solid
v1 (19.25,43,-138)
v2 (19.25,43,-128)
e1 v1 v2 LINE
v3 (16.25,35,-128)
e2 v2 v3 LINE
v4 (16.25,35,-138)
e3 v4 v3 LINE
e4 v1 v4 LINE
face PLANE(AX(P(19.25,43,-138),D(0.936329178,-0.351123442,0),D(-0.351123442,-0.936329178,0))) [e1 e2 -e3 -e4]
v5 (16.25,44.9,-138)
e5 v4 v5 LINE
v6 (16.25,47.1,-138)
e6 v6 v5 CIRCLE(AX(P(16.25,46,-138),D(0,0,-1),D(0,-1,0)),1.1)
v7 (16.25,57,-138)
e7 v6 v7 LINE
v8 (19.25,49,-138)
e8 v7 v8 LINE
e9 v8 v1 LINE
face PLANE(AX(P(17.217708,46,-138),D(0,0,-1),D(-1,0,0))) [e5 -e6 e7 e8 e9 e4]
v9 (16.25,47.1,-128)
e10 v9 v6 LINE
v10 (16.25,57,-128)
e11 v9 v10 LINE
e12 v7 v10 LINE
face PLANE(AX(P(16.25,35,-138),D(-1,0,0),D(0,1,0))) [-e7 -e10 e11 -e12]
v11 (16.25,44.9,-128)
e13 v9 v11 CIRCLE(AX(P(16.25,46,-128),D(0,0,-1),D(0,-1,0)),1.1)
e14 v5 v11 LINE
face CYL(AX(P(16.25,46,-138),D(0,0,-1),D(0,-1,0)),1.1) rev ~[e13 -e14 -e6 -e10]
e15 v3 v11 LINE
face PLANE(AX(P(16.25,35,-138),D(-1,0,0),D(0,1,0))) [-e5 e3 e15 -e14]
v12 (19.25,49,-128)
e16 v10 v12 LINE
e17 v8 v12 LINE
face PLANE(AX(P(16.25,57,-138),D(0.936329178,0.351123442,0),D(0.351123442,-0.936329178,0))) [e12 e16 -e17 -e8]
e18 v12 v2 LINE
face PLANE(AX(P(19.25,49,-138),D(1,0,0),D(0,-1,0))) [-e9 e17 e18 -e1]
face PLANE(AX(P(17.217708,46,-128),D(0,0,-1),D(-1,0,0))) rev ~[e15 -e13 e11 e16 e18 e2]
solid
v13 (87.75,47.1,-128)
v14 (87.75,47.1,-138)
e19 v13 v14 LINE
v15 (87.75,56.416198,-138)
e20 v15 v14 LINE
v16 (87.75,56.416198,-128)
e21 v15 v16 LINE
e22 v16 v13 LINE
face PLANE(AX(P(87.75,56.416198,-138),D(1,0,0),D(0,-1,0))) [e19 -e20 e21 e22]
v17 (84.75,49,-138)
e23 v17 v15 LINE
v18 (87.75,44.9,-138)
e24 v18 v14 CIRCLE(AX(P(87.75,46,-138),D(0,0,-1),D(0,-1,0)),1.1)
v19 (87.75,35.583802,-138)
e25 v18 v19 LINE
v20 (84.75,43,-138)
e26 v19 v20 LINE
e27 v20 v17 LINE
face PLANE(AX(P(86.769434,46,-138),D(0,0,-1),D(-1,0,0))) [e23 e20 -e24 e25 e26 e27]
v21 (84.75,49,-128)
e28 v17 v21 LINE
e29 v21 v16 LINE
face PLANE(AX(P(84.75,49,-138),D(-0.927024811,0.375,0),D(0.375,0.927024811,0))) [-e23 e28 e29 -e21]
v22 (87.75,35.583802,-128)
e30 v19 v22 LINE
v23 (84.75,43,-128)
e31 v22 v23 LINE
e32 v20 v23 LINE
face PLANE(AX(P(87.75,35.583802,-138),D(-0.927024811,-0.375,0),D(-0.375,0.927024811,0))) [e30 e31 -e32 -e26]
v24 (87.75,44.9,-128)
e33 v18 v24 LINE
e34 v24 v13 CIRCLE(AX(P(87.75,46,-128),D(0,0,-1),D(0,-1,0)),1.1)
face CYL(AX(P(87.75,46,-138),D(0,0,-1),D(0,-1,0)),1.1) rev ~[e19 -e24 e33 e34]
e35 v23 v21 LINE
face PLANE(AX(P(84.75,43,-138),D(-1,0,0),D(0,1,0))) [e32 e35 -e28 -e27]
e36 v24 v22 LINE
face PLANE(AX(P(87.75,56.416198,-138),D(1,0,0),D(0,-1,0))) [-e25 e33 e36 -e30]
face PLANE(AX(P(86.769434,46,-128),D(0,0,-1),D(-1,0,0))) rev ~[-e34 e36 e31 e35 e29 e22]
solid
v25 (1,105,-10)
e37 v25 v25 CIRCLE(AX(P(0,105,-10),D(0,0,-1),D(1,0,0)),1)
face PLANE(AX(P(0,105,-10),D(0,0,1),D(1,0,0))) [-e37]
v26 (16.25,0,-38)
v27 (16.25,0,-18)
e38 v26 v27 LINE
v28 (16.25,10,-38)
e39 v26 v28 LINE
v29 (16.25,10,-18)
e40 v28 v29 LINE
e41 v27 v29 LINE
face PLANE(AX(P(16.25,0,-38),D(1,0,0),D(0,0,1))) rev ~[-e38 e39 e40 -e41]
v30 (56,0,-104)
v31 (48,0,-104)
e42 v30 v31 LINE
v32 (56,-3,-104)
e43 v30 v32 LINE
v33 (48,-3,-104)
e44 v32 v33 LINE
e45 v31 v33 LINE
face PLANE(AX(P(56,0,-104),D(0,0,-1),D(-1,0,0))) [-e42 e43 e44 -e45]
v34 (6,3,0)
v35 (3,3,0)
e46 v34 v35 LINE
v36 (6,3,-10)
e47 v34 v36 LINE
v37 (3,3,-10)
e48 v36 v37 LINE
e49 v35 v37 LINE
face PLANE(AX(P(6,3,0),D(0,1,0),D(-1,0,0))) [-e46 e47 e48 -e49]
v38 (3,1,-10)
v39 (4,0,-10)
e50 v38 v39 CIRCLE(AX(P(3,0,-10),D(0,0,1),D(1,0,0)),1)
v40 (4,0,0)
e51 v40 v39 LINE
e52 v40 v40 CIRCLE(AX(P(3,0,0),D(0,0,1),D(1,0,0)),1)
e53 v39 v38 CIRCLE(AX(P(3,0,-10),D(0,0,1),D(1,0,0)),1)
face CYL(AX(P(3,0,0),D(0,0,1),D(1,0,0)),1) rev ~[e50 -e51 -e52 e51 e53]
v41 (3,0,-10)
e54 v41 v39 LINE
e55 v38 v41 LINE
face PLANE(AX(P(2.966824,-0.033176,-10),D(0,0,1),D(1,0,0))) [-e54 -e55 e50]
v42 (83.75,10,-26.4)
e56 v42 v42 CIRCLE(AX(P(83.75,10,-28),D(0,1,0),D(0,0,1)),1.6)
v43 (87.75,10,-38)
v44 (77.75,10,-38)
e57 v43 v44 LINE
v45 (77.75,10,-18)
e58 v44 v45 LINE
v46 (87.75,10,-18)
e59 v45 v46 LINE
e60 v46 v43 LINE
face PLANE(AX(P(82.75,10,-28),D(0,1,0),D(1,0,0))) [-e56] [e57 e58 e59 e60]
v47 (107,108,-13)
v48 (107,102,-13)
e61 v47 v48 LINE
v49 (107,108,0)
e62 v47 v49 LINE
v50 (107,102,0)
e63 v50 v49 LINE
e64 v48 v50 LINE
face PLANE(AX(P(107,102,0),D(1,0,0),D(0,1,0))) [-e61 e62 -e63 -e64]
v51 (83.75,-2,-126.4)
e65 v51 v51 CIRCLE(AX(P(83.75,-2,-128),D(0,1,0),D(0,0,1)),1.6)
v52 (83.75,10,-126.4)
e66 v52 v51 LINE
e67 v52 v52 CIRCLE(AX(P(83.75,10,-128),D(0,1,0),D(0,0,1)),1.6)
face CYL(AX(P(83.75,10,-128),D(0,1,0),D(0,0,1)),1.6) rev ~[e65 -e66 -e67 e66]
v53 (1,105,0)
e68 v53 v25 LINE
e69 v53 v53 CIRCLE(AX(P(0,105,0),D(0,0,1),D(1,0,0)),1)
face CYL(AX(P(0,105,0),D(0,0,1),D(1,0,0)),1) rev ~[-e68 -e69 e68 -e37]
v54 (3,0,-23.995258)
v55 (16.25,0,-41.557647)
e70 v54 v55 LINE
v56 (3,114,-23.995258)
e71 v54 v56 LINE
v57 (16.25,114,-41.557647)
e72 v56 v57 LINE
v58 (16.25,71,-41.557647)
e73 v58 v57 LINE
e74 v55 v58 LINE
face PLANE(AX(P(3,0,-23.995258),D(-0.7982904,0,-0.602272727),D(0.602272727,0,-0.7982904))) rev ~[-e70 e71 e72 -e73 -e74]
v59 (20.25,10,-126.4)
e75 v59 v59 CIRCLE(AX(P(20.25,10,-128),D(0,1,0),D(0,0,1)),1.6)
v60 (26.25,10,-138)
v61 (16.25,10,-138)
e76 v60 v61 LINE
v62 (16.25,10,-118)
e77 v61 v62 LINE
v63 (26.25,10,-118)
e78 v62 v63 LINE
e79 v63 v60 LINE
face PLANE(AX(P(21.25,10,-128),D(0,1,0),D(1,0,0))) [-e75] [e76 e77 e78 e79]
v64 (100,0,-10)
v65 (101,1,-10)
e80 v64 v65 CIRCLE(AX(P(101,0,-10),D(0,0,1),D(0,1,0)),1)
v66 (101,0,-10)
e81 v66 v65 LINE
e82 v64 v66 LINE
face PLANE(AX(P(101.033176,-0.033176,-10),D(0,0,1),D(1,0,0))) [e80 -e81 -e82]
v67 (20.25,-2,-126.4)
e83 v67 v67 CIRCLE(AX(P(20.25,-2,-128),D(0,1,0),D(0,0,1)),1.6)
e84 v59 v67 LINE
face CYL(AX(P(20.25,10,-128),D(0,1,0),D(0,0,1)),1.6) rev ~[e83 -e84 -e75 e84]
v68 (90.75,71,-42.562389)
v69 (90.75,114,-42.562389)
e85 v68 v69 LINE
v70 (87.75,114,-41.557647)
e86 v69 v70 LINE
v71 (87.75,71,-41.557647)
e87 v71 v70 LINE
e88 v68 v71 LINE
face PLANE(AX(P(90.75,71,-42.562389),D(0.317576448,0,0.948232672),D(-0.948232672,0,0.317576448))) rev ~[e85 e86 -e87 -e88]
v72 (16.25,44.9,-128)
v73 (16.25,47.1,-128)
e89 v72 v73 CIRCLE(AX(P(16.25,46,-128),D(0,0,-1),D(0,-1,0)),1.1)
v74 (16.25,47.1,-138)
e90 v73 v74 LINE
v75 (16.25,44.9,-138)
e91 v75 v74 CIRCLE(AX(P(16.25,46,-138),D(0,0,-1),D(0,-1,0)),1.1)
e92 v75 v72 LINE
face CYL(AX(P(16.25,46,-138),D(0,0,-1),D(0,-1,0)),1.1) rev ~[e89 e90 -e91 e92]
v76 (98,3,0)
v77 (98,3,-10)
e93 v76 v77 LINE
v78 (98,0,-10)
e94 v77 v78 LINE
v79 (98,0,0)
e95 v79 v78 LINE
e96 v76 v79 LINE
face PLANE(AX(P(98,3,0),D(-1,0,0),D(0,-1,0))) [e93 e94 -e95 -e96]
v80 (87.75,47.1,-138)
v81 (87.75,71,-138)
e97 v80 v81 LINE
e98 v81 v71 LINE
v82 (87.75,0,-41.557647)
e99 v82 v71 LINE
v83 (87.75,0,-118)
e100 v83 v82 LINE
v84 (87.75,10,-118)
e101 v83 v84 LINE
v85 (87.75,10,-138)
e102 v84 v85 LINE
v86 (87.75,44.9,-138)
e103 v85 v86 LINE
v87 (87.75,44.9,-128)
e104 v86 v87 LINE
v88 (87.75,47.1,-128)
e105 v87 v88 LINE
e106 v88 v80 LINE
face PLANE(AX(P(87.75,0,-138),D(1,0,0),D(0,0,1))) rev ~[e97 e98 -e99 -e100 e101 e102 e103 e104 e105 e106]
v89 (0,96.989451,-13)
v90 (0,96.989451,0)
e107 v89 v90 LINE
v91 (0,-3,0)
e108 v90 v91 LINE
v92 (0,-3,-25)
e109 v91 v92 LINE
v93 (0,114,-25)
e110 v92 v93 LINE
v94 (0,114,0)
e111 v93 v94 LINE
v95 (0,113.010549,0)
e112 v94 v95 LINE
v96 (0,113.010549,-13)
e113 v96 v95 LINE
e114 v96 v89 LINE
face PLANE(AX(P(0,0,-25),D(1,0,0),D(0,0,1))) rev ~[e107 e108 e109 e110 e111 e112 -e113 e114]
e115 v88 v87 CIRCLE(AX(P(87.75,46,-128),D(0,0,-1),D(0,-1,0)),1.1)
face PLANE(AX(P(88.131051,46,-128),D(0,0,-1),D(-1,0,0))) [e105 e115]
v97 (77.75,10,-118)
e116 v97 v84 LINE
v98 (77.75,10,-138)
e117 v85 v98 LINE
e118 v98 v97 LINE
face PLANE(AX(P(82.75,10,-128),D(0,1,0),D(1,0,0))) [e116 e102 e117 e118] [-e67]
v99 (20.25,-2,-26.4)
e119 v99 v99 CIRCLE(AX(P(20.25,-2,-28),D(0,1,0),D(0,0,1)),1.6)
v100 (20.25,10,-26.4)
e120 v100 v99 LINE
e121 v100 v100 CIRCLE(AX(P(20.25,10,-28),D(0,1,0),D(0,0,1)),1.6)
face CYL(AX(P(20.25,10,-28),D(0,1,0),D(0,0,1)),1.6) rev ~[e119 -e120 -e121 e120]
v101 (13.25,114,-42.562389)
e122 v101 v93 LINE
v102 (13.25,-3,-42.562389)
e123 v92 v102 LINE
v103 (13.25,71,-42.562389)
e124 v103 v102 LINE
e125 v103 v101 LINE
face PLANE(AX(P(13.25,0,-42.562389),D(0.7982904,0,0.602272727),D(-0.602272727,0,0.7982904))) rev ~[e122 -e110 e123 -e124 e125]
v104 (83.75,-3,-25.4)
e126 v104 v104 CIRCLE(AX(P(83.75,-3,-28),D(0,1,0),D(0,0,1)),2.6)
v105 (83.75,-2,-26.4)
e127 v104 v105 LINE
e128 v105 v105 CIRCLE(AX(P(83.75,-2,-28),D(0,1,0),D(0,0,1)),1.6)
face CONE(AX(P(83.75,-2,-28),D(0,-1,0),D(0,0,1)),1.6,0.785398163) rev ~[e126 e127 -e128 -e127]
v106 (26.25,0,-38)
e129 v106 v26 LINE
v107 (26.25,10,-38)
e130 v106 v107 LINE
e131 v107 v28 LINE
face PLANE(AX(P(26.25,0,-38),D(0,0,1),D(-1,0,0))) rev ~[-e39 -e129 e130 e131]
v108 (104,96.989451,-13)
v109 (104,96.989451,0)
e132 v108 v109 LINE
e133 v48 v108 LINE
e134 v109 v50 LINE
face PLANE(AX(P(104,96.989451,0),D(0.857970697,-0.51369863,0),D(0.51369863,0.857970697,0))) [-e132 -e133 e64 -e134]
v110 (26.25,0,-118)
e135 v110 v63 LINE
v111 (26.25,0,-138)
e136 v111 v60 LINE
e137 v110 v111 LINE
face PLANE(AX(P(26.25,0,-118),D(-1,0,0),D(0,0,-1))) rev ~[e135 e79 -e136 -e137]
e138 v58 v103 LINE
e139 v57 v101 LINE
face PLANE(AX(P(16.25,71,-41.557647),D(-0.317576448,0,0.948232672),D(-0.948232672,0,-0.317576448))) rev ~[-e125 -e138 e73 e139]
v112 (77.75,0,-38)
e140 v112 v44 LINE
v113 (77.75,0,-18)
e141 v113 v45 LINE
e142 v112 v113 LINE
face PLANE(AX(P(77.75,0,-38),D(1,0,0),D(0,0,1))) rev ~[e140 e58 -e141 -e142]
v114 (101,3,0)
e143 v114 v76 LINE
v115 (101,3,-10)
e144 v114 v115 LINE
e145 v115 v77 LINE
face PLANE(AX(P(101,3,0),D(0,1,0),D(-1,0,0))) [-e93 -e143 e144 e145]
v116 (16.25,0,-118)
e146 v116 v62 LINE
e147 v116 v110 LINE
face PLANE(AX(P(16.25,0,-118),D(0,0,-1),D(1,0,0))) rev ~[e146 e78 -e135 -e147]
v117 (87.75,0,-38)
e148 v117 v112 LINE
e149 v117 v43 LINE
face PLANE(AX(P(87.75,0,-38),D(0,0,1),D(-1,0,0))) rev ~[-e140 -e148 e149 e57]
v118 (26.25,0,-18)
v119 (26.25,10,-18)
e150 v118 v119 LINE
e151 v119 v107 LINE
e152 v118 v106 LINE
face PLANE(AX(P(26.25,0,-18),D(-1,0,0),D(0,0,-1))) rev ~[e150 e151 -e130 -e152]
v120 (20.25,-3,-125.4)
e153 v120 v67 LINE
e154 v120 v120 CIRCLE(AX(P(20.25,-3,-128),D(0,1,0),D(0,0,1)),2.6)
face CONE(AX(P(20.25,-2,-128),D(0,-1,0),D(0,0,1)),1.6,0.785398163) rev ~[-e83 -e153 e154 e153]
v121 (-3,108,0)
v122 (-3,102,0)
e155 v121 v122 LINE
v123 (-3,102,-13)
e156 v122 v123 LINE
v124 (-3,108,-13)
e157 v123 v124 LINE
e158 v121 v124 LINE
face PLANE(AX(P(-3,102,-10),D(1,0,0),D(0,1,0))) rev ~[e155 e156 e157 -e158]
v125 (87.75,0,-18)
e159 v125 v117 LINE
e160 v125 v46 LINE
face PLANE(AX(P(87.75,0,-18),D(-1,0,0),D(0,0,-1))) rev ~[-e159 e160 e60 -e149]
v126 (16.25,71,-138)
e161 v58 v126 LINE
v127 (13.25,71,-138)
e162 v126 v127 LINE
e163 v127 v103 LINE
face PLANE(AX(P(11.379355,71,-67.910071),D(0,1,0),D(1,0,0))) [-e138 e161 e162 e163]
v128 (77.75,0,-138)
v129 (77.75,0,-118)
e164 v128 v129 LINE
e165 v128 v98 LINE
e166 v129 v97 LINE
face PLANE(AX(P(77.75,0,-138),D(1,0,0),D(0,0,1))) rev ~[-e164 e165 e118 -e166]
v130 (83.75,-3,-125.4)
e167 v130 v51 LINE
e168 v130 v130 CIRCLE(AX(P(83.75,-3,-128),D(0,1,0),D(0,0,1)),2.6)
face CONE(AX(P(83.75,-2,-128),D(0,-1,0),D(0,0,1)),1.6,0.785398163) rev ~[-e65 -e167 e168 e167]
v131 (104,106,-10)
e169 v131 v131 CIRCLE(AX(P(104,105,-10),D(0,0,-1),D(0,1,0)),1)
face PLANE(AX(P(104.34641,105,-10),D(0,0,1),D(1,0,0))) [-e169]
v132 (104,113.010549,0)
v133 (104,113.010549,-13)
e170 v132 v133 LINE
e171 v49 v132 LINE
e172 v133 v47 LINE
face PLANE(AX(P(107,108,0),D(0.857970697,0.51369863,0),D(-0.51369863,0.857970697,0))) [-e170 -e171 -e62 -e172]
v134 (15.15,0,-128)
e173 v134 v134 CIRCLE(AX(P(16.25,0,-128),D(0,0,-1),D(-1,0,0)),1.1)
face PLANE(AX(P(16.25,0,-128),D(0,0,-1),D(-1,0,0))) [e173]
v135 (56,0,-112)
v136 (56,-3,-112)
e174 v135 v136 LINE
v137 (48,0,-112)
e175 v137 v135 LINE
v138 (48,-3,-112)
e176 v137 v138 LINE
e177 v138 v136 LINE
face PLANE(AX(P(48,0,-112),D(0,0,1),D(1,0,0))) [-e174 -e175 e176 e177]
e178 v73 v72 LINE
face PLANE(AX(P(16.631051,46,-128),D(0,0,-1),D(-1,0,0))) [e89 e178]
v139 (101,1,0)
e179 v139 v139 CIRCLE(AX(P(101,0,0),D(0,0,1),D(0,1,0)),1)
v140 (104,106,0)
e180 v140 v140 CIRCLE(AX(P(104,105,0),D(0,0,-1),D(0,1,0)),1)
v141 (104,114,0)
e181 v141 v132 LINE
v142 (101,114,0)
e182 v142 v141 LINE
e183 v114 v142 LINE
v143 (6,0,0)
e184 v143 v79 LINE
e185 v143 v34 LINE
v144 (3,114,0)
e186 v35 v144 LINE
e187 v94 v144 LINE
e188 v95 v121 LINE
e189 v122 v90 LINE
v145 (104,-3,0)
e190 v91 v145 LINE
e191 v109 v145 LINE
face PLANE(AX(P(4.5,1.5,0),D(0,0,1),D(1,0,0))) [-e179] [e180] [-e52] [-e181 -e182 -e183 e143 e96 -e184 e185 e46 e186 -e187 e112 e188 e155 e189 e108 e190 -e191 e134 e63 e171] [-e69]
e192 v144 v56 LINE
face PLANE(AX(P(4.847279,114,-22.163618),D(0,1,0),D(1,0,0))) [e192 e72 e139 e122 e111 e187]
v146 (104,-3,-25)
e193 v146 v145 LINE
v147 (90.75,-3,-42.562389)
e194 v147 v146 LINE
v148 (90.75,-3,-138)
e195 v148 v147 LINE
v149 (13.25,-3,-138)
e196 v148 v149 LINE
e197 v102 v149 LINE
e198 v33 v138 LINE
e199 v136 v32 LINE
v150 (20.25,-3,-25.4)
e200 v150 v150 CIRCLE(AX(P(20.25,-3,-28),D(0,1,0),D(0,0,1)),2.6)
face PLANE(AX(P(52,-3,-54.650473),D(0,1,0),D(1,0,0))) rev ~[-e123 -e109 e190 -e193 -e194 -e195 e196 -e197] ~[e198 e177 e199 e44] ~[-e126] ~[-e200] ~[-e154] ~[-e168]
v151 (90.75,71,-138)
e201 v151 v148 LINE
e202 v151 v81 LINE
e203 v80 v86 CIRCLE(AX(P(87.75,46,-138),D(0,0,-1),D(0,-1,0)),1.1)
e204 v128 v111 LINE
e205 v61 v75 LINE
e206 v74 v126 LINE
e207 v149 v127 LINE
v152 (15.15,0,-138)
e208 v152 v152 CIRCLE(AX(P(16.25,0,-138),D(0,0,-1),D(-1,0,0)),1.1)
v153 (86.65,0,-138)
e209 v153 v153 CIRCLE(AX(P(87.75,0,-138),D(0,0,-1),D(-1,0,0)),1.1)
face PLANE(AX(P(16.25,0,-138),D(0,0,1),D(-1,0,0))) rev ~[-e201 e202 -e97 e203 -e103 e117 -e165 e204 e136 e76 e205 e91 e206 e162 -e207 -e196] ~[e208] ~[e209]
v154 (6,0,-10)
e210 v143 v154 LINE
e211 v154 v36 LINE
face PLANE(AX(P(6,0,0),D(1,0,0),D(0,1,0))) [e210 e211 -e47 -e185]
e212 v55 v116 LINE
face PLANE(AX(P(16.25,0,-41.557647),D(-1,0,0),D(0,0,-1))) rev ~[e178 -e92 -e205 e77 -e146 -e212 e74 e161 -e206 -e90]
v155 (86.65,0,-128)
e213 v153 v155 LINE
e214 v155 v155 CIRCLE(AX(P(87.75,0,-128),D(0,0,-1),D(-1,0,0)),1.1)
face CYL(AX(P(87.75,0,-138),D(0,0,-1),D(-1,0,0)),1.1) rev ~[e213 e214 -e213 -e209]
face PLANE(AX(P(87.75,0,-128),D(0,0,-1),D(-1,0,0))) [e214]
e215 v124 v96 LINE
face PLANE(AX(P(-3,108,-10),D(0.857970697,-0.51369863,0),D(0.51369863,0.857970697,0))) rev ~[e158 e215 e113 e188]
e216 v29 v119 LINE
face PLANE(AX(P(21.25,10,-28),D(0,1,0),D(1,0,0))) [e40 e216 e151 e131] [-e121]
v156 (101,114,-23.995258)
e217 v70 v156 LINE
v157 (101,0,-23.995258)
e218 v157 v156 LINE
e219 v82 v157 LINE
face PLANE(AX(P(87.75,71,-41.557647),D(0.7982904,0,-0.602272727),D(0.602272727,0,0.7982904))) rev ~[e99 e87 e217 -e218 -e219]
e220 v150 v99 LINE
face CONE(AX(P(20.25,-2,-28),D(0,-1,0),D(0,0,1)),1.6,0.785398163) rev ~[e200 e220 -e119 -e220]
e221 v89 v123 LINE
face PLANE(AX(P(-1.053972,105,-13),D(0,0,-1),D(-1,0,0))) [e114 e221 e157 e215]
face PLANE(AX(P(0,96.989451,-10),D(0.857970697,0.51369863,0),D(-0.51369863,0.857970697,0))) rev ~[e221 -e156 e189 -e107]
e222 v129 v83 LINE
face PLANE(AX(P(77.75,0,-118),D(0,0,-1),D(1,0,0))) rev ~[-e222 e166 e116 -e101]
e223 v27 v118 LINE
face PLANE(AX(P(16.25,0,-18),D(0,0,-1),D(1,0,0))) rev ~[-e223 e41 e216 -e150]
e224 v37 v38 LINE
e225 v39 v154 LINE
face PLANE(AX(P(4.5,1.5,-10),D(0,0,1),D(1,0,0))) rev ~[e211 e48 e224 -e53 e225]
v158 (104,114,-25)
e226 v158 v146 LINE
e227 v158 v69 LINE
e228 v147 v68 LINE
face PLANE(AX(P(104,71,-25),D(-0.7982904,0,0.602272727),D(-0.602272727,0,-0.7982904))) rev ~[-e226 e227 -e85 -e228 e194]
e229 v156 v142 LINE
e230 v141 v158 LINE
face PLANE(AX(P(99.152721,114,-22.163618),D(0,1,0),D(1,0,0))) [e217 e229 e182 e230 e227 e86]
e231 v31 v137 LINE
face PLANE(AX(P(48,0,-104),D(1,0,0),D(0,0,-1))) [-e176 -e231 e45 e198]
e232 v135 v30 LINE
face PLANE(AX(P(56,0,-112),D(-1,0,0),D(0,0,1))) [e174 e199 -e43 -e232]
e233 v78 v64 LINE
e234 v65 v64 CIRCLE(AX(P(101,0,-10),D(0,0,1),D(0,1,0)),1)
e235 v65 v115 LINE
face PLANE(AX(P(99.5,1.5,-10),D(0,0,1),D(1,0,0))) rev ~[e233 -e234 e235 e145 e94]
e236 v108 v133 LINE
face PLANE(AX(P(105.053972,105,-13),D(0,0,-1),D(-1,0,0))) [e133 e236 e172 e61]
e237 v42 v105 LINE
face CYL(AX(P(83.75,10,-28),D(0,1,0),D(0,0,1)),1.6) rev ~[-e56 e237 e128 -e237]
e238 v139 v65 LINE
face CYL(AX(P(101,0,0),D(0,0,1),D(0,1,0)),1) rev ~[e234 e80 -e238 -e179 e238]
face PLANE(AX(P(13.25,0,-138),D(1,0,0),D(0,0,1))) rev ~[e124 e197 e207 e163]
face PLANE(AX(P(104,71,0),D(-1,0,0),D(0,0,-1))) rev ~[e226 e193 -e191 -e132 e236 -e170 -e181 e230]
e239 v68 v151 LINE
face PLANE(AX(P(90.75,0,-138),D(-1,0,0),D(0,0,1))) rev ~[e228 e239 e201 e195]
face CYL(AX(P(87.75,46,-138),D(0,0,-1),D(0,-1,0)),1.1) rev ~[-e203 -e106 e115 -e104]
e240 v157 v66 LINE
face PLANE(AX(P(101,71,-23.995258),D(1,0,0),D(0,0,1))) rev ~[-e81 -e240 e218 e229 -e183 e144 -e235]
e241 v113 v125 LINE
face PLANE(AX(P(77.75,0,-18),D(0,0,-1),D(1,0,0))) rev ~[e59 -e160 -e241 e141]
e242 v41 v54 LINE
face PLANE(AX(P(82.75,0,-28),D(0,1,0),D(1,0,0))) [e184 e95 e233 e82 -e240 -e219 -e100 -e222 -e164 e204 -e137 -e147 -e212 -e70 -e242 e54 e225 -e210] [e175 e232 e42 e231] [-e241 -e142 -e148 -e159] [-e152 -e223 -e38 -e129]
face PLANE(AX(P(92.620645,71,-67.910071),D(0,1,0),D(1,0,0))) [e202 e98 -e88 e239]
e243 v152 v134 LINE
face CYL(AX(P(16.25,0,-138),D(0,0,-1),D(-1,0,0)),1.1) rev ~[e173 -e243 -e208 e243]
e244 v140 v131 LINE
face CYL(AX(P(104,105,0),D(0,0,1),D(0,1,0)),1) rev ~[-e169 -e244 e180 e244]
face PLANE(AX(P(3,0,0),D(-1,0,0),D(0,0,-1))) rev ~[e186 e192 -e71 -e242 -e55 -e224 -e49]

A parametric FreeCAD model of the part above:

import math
import FreeCAD as App
import Part
import Sketcher

V = App.Vector


def edges_at(feature, points):
    """Names of the edges that pass closest to the given points."""
    edges = feature.Shape.Edges
    near = lambda p: min(range(len(edges)), key=lambda i: edges[i].distToShape(Part.Vertex(*p))[0])
    return sorted({f"Edge{near(p) + 1}" for p in points})


def add_polygon(sketch, points):
    """Adds a closed chain of lines whose ends are joined by coincident constraints."""
    first, n = sketch.GeometryCount, len(points)
    for a, b in zip(points, points[1:] + points[:1]):
        sketch.addGeometry(Part.LineSegment(App.Vector(*a, 0), App.Vector(*b, 0)), False)
    for i in range(n):
        sketch.addConstraint(Sketcher.Constraint("Coincident", first + i, 2, first + (i + 1) % n, 1))

doc = App.newDocument("Part")
body = doc.addObject("PartDesign::Body", "Body")

sketch1 = body.newObject("Sketcher::SketchObject", "Sketch")
sketch1.AttachmentSupport = (doc.getObject("XZ_Plane"), [""])
sketch1.MapMode = "FlatFace"
add_polygon(sketch1, [(0, 0), (104, 0), (104, -25), (91, -43), (91, -138), (13, -138), (13, -43), (0, -25)])
add_polygon(sketch1, [(56, -112), (56, -104), (48, -104), (48, -112)])
sketch1.addConstraint([
    Sketcher.Constraint("Horizontal", 0),
    Sketcher.Constraint("Vertical", 1),
    Sketcher.Constraint("Vertical", 3),
    Sketcher.Constraint("Horizontal", 4),
    Sketcher.Constraint("Vertical", 5),
    Sketcher.Constraint("Vertical", 7),
    Sketcher.Constraint("Vertical", 8),
    Sketcher.Constraint("Horizontal", 9),
    Sketcher.Constraint("Vertical", 10),
    Sketcher.Constraint("Horizontal", 11),
    Sketcher.Constraint("Coincident", 7, 2, -1, 1),
    Sketcher.Constraint("Horizontal", 2, 2, 5, 2),
    Sketcher.Constraint("Horizontal", 1, 2, 6, 2),
    Sketcher.Constraint("Equal", 11, 8),
    Sketcher.Constraint("Equal", 2, 6),
    Sketcher.Constraint("DistanceX", 0, 1, 0, 2, 104.0),
    Sketcher.Constraint("DistanceX", 9, 2, 9, 1, 8.0),
    Sketcher.Constraint("DistanceY", 1, 2, 1, 1, 25.0),
    Sketcher.Constraint("Distance", 2, 22.0),
    Sketcher.Constraint("DistanceX", 4, 2, 4, 1, 77.5),
    Sketcher.Constraint("DistanceY", 3, 2, -1, 1, 138.0),
    Sketcher.Constraint("DistanceX", -1, 1, 8, 2, 56.0),
    Sketcher.Constraint("DistanceY", 8, 2, -1, 1, 104.0),
])
pad1 = body.newObject("PartDesign::Pad", "Pad")
pad1.Profile = sketch1
pad1.Length = 3

sketch2 = body.newObject("Sketcher::SketchObject", "Sketch001")
sketch2.AttachmentSupport = (doc.getObject("XZ_Plane"), [""])
sketch2.MapMode = "FlatFace"
add_polygon(sketch2, [(0, 0), (3, 0), (3, -24), (16.2, -41.6), (16.2, -138), (13.2, -138), (13.2, -42.6), (0, -25)])
add_polygon(sketch2, [(101, -24), (101, 0), (104, 0), (104, -25), (90.8, -42.6), (90.8, -138), (87.8, -138), (87.8, -41.6)])
sketch2.addConstraint([
    Sketcher.Constraint("Horizontal", 0),
    Sketcher.Constraint("Vertical", 1),
    Sketcher.Constraint("Vertical", 3),
    Sketcher.Constraint("Horizontal", 4),
    Sketcher.Constraint("Vertical", 5),
    Sketcher.Constraint("Vertical", 7),
    Sketcher.Constraint("Vertical", 8),
    Sketcher.Constraint("Horizontal", 9),
    Sketcher.Constraint("Vertical", 10),
    Sketcher.Constraint("Vertical", 12),
    Sketcher.Constraint("Horizontal", 13),
    Sketcher.Constraint("Vertical", 14),
    Sketcher.Constraint("Coincident", 7, 2, -1, 1),
    Sketcher.Constraint("PointOnObject", 8, 2, -1),
    Sketcher.Constraint("Parallel", 2, 6),
    Sketcher.Constraint("Parallel", 11, 15),
    Sketcher.Constraint("Horizontal", 6, 2, 10, 2),
    Sketcher.Constraint("Horizontal", 5, 2, 11, 2),
    Sketcher.Constraint("Horizontal", 4, 2, 12, 2),
    Sketcher.Constraint("Horizontal", 2, 2, 14, 2),
    Sketcher.Constraint("Horizontal", 1, 2, 15, 2),
    Sketcher.Constraint("Equal", 0, 4),
    Sketcher.Constraint("Equal", 4, 9),
    Sketcher.Constraint("Equal", 6, 11),
    Sketcher.Constraint("DistanceX", 0, 1, 0, 2, 3.0),
    Sketcher.Constraint("DistanceY", 7, 1, 7, 2, 25.0),
    Sketcher.Constraint("Distance", 2, 22.0),
    Sketcher.Constraint("DistanceY", 3, 2, -1, 1, 138.0),
    Sketcher.Constraint("DistanceX", -1, 1, 8, 2, 101.0),
    Sketcher.Constraint("DistanceX", 2, 2, 11, 2, 74.5),
    Sketcher.Constraint("DistanceY", 1, 2, 1, 1, 23.995258),
])
pad2 = body.newObject("PartDesign::Pad", "Pad001")
pad2.Profile = sketch2
pad2.Length = 71
pad2.Reversed = True

sketch3 = body.newObject("Sketcher::SketchObject", "Sketch002")
sketch3.AttachmentSupport = (doc.getObject("XZ_Plane"), [""])
sketch3.MapMode = "FlatFace"
sketch3.AttachmentOffset = App.Placement(V(0, 0, -71), App.Rotation())
add_polygon(sketch3, [(90.8, -42.6), (87.8, -41.6), (101, -24), (101, 0), (104, 0), (104, -25)])
add_polygon(sketch3, [(16.2, -41.6), (13.2, -42.6), (0, -25), (0, 0), (3, 0), (3, -24)])
sketch3.addConstraint([
    Sketcher.Constraint("Vertical", 2),
    Sketcher.Constraint("Horizontal", 3),
    Sketcher.Constraint("Vertical", 4),
    Sketcher.Constraint("Vertical", 8),
    Sketcher.Constraint("Horizontal", 9),
    Sketcher.Constraint("Vertical", 10),
    Sketcher.Constraint("Coincident", 8, 2, -1, 1),
    Sketcher.Constraint("PointOnObject", 2, 2, -1),
    Sketcher.Constraint("Parallel", 1, 5),
    Sketcher.Constraint("Parallel", 7, 11),
    Sketcher.Constraint("Horizontal", 5, 2, 6, 2),
    Sketcher.Constraint("Horizontal", 4, 2, 7, 2),
    Sketcher.Constraint("Horizontal", 1, 2, 10, 2),
    Sketcher.Constraint("Horizontal", 0, 2, 11, 2),
    Sketcher.Constraint("Equal", 3, 9),
    Sketcher.Constraint("Equal", 1, 5),
    Sketcher.Constraint("Equal", 5, 7),
    Sketcher.Constraint("DistanceX", 3, 1, 3, 2, 3.0),
    Sketcher.Constraint("DistanceY", 4, 2, 4, 1, 25.0),
    Sketcher.Constraint("Distance", 1, 22.0),
    Sketcher.Constraint("DistanceX", -1, 1, 1, 2, 101.0),
    Sketcher.Constraint("DistanceX", 6, 2, 0, 2, 74.5),
    Sketcher.Constraint("Distance", 0, 3.16378),
])
pad3 = body.newObject("PartDesign::Pad", "Pad002")
pad3.Profile = sketch3
pad3.Length = 43
pad3.Reversed = True

sketch4 = body.newObject("Sketcher::SketchObject", "Sketch003")
sketch4.AttachmentSupport = (doc.getObject("XZ_Plane"), [""])
sketch4.MapMode = "FlatFace"
add_polygon(sketch4, [(16, -38), (16, -18), (26, -18), (26, -38)])
add_polygon(sketch4, [(88, -18), (88, -38), (78, -38), (78, -18)])
add_polygon(sketch4, [(16, -138), (16, -118), (26, -118), (26, -138)])
add_polygon(sketch4, [(88, -118), (88, -138), (78, -138), (78, -118)])
sketch4.addConstraint([
    Sketcher.Constraint("Vertical", 0),
    Sketcher.Constraint("Horizontal", 1),
    Sketcher.Constraint("Vertical", 2),
    Sketcher.Constraint("Horizontal", 3),
    Sketcher.Constraint("Vertical", 4),
    Sketcher.Constraint("Horizontal", 5),
    Sketcher.Constraint("Vertical", 6),
    Sketcher.Constraint("Horizontal", 7),
    Sketcher.Constraint("Vertical", 8),
    Sketcher.Constraint("Horizontal", 9),
    Sketcher.Constraint("Vertical", 10),
    Sketcher.Constraint("Horizontal", 11),
    Sketcher.Constraint("Vertical", 12),
    Sketcher.Constraint("Horizontal", 13),
    Sketcher.Constraint("Vertical", 14),
    Sketcher.Constraint("Horizontal", 15),
    Sketcher.Constraint("Horizontal", 3, 2, 4, 2),
    Sketcher.Constraint("Horizontal", 1, 2, 6, 2),
    Sketcher.Constraint("Horizontal", 11, 2, 12, 2),
    Sketcher.Constraint("Horizontal", 9, 2, 14, 2),
    Sketcher.Constraint("Vertical", 3, 2, 8, 2),
    Sketcher.Constraint("Vertical", 2, 2, 9, 2),
    Sketcher.Constraint("Vertical", 7, 2, 12, 2),
    Sketcher.Constraint("Vertical", 6, 2, 13, 2),
    Sketcher.Constraint("Equal", 3, 5),
    Sketcher.Constraint("Equal", 6, 8),
    Sketcher.Constraint("DistanceX", 1, 1, 1, 2, 10.0),
    Sketcher.Constraint("DistanceY", 0, 1, 0, 2, 20.0),
    Sketcher.Constraint("DistanceY", 0, 2, -1, 1, 18.0),
    Sketcher.Constraint("DistanceY", 8, 2, -1, 1, 118.0),
    Sketcher.Constraint("DistanceX", 2, 2, 4, 2, 61.5),
    Sketcher.Constraint("DistanceX", -1, 1, 0, 2, 16.25),
])
pad4 = body.newObject("PartDesign::Pad", "Pad003")
pad4.Profile = sketch4
pad4.Length = 10
pad4.Reversed = True

sketch5 = body.newObject("Sketcher::SketchObject", "Sketch004")
sketch5.AttachmentSupport = (doc.getObject("XY_Plane"), [""])
sketch5.MapMode = "FlatFace"
add_polygon(sketch5, [(0, 113), (-3, 108), (-3, 102), (0, 97)])
add_polygon(sketch5, [(6, 3), (3, 3), (3, 0), (6, 0)])
add_polygon(sketch5, [(98, 3), (98, 0), (101, 0), (101, 3)])
sketch5.addGeometry(Part.LineSegment(V(104, 97, 0), V(107, 102, 0)), False)
sketch5.addGeometry(Part.LineSegment(V(107, 102, 0), V(107, 108, 0)), False)
sketch5.addGeometry(Part.LineSegment(V(107, 108, 0), V(104, 113, 0)), False)
sketch5.addGeometry(Part.LineSegment(V(104, 113, 0), V(104, 106, 0)), False)
sketch5.addGeometry(Part.ArcOfCircle(Part.Circle(V(104, 105, 0), V(0, 0, 1), 1), math.radians(-90), math.radians(90)), False)
sketch5.addGeometry(Part.LineSegment(V(104, 104, 0), V(104, 97, 0)), False)
sketch5.addConstraint([
    Sketcher.Constraint("Coincident", 12, 2, 13, 1),
    Sketcher.Constraint("Coincident", 13, 2, 14, 1),
    Sketcher.Constraint("Coincident", 14, 2, 15, 1),
    Sketcher.Constraint("Coincident", 15, 2, 16, 2),
    Sketcher.Constraint("Coincident", 16, 1, 17, 1),
    Sketcher.Constraint("Coincident", 17, 2, 12, 1),
    Sketcher.Constraint("Vertical", 1),
    Sketcher.Constraint("Vertical", 3),
    Sketcher.Constraint("Horizontal", 4),
    Sketcher.Constraint("Vertical", 5),
    Sketcher.Constraint("Horizontal", 6),
    Sketcher.Constraint("Vertical", 7),
    Sketcher.Constraint("Vertical", 8),
    Sketcher.Constraint("Horizontal", 9),
    Sketcher.Constraint("Vertical", 10),
    Sketcher.Constraint("Horizontal", 11),
    Sketcher.Constraint("Vertical", 13),
    Sketcher.Constraint("Vertical", 15),
    Sketcher.Constraint("Vertical", 17),
    Sketcher.Constraint("PointOnObject", 2, 2, -2),
    Sketcher.Constraint("PointOnObject", 5, 2, -1),
    Sketcher.Constraint("PointOnObject", 8, 2, -1),
    Sketcher.Constraint("Parallel", 0, 12),
    Sketcher.Constraint("Parallel", 2, 14),
    Sketcher.Constraint("Horizontal", 7, 2, 10, 2),
    Sketcher.Constraint("Horizontal", 1, 2, 12, 2),
    Sketcher.Constraint("Horizontal", 0, 2, 13, 2),
    Sketcher.Constraint("Horizontal", 3, 2, 14, 2),
    Sketcher.Constraint("Horizontal", 2, 2, 17, 2),
    Sketcher.Constraint("Vertical", 16, 3, 14, 2),
    Sketcher.Constraint("Vertical", 15, 2, 16, 1),
    Sketcher.Constraint("Equal", 6, 9),
    Sketcher.Constraint("Equal", 11, 5),
    Sketcher.Constraint("Equal", 15, 17),
    Sketcher.Constraint("Radius", 16, 1.0),
    Sketcher.Constraint("DistanceX", 4, 2, 4, 1, 3.0),
    Sketcher.Constraint("DistanceY", 1, 2, 1, 1, 6.0),
    Sketcher.Constraint("DistanceX", -1, 1, 16, 3, 104.0),
    Sketcher.Constraint("DistanceY", -1, 1, 16, 3, 105.0),
    Sketcher.Constraint("DistanceX", 0, 2, -1, 1, 3.0),
    Sketcher.Constraint("DistanceX", -1, 1, 4, 2, 3.0),
    Sketcher.Constraint("DistanceX", -1, 1, 8, 2, 98.0),
    Sketcher.Constraint("Distance", 0, 5.84),
])
pad5 = body.newObject("PartDesign::Pad", "Pad004")
pad5.Profile = sketch5
pad5.Length = 10
pad5.Reversed = True

sketch6 = body.newObject("Sketcher::SketchObject", "Sketch005")
sketch6.AttachmentSupport = (doc.getObject("XY_Plane"), [""])
sketch6.MapMode = "FlatFace"
sketch6.addGeometry([
    Part.Circle(V(3, 0, 0), V(0, 0, 1), 1),
    Part.Circle(V(101, 0, 0), V(0, 0, 1), 1),
    Part.Circle(V(104, 105, 0), V(0, 0, 1), 1),
    Part.Circle(V(0, 105, 0), V(0, 0, 1), 1),
], False)
sketch6.addConstraint([
    Sketcher.Constraint("Equal", 0, 1),
    Sketcher.Constraint("Equal", 1, 2),
    Sketcher.Constraint("Equal", 2, 3),
    Sketcher.Constraint("PointOnObject", 0, 3, -1),
    Sketcher.Constraint("PointOnObject", 1, 3, -1),
    Sketcher.Constraint("PointOnObject", 3, 3, -2),
    Sketcher.Constraint("Horizontal", 2, 3, 3, 3),
    Sketcher.Constraint("Diameter", 0, 2.0),
    Sketcher.Constraint("DistanceX", -1, 1, 0, 3, 3.0),
    Sketcher.Constraint("DistanceX", -1, 1, 1, 3, 101.0),
    Sketcher.Constraint("DistanceX", -1, 1, 2, 3, 104.0),
    Sketcher.Constraint("DistanceY", -1, 1, 2, 3, 105.0),
])
pocket1 = body.newObject("PartDesign::Pocket", "Pocket")
pocket1.Profile = sketch6
pocket1.Length = 10
body2 = doc.addObject("PartDesign::Body", "Body001")

sketch7 = body2.newObject("Sketcher::SketchObject", "Sketch006")
sketch7.AttachmentSupport = (doc.getObject("XY_Plane001"), [""])
sketch7.MapMode = "FlatFace"
sketch7.AttachmentOffset = App.Placement(V(0, 0, -138), App.Rotation())
add_polygon(sketch7, [(88, 56), (88, 36), (85, 43), (85, 49)])
sketch7.addConstraint([
    Sketcher.Constraint("Vertical", 0),
    Sketcher.Constraint("Vertical", 2),
    Sketcher.Constraint("Equal", 1, 3),
    Sketcher.Constraint("DistanceY", 2, 1, 2, 2, 6.0),
    Sketcher.Constraint("Distance", 1, 8.0),
    Sketcher.Constraint("DistanceY", -1, 1, 1, 2, 43.0),
    Sketcher.Constraint("DistanceX", 1, 2, 0, 2, 3.0),
    Sketcher.Constraint("DistanceX", -1, 1, 0, 2, 87.75),
])
pad6 = body2.newObject("PartDesign::Pad", "Pad005")
pad6.Profile = sketch7
pad6.Length = 10
body3 = doc.addObject("PartDesign::Body", "Body002")

sketch8 = body3.newObject("Sketcher::SketchObject", "Sketch007")
sketch8.AttachmentSupport = (doc.getObject("XY_Plane002"), [""])
sketch8.MapMode = "FlatFace"
sketch8.AttachmentOffset = App.Placement(V(0, 0, -138), App.Rotation())
add_polygon(sketch8, [(16, 35), (16, 57), (19, 49), (19, 43)])
sketch8.addConstraint([
    Sketcher.Constraint("Vertical", 0),
    Sketcher.Constraint("Vertical", 2),
    Sketcher.Constraint("Equal", 1, 3),
    Sketcher.Constraint("DistanceY", 0, 1, 0, 2, 22.0),
    Sketcher.Constraint("DistanceY", 2, 2, 2, 1, 6.0),
    Sketcher.Constraint("DistanceY", -1, 1, 0, 2, 57.0),
    Sketcher.Constraint("DistanceX", 0, 2, 1, 2, 3.0),
    Sketcher.Constraint("DistanceX", -1, 1, 0, 2, 16.25),
])
pad7 = body3.newObject("PartDesign::Pad", "Pad006")
pad7.Profile = sketch8
pad7.Length = 10
body4 = doc.addObject("PartDesign::Body", "Body003")
body4.AllowCompound = True

sketch9 = body4.newObject("Sketcher::SketchObject", "Sketch008")
sketch9.AttachmentSupport = (doc.getObject("XY_Plane003"), [""])
sketch9.MapMode = "FlatFace"
sketch9.AttachmentOffset = App.Placement(V(0, 0, -138), App.Rotation())
sketch9.addGeometry([
    Part.Circle(V(87.8, 46, 0), V(0, 0, 1), 1.1),
    Part.Circle(V(16.2, 46, 0), V(0, 0, 1), 1.1),
    Part.Circle(V(87.8, 0, 0), V(0, 0, 1), 1.1),
    Part.Circle(V(16.2, 0, 0), V(0, 0, 1), 1.1),
], False)
sketch9.addConstraint([
    Sketcher.Constraint("Equal", 0, 1),
    Sketcher.Constraint("Equal", 1, 2),
    Sketcher.Constraint("Equal", 2, 3),
    Sketcher.Constraint("PointOnObject", 2, 3, -1),
    Sketcher.Constraint("PointOnObject", 3, 3, -1),
    Sketcher.Constraint("Horizontal", 0, 3, 1, 3),
    Sketcher.Constraint("Vertical", 0, 3, 2, 3),
    Sketcher.Constraint("Vertical", 1, 3, 3, 3),
    Sketcher.Constraint("Diameter", 0, 2.2),
    Sketcher.Constraint("DistanceY", -1, 1, 0, 3, 46.0),
    Sketcher.Constraint("DistanceX", 1, 3, 0, 3, 71.5),
    Sketcher.Constraint("DistanceX", -1, 1, 0, 3, 87.75),
])
pad8 = body4.newObject("PartDesign::Pad", "Pad007")
pad8.Profile = sketch9
pad8.Length = 10
doc.recompute()

body5 = doc.addObject("PartDesign::Body", "Body004")
body5.BaseFeature = body4
boolean = body.newObject("PartDesign::Boolean", "Boolean")
boolean.Type = "Cut"
boolean.addObjects([body5])
doc.recompute()

sketch10 = body.newObject("Sketcher::SketchObject", "Sketch009")
sketch10.AttachmentSupport = (doc.getObject("XY_Plane"), [""])
sketch10.MapMode = "FlatFace"
sketch10.AttachmentOffset = App.Placement(V(0, 0, -10), App.Rotation())
add_polygon(sketch10, [(0, 113), (0, 97), (-3, 102), (-3, 108)])
add_polygon(sketch10, [(104, 113), (107, 108), (107, 102), (104, 97)])
sketch10.addConstraint([
    Sketcher.Constraint("Vertical", 0),
    Sketcher.Constraint("Vertical", 2),
    Sketcher.Constraint("Vertical", 5),
    Sketcher.Constraint("Vertical", 7),
    Sketcher.Constraint("PointOnObject", 0, 2, -2),
    Sketcher.Constraint("Parallel", 1, 4),
    Sketcher.Constraint("Parallel", 3, 6),
    Sketcher.Constraint("Horizontal", 2, 2, 4, 2),
    Sketcher.Constraint("Horizontal", 1, 2, 5, 2),
    Sketcher.Constraint("Horizontal", 0, 2, 6, 2),
    Sketcher.Constraint("Horizontal", 3, 2, 7, 2),
    Sketcher.Constraint("DistanceY", 2, 1, 2, 2, 6.0),
    Sketcher.Constraint("DistanceX", 1, 2, -1, 1, 3.0),
    Sketcher.Constraint("DistanceY", -1, 1, 1, 2, 102.0),
    Sketcher.Constraint("DistanceX", -1, 1, 4, 2, 107.0),
    Sketcher.Constraint("Distance", 1, 5.84),
])
pad9 = body.newObject("PartDesign::Pad", "Pad008")
pad9.Profile = sketch10
pad9.Length = 3
pad9.Reversed = True

sketch11 = body.newObject("Sketcher::SketchObject", "Sketch010")
sketch11.AttachmentSupport = (doc.getObject("XZ_Plane"), [""])
sketch11.MapMode = "FlatFace"
sketch11.AttachmentOffset = App.Placement(V(0, 0, -10), App.Rotation())
sketch11.addGeometry([
    Part.Circle(V(20.2, -28, 0), V(0, 0, 1), 1.6),
    Part.Circle(V(83.8, -28, 0), V(0, 0, 1), 1.6),
    Part.Circle(V(20.2, -128, 0), V(0, 0, 1), 1.6),
    Part.Circle(V(83.8, -128, 0), V(0, 0, 1), 1.6),
], False)
sketch11.addConstraint([
    Sketcher.Constraint("Equal", 0, 1),
    Sketcher.Constraint("Equal", 1, 2),
    Sketcher.Constraint("Equal", 2, 3),
    Sketcher.Constraint("Horizontal", 0, 3, 1, 3),
    Sketcher.Constraint("Horizontal", 2, 3, 3, 3),
    Sketcher.Constraint("Vertical", 0, 3, 2, 3),
    Sketcher.Constraint("Vertical", 1, 3, 3, 3),
    Sketcher.Constraint("Diameter", 0, 3.2),
    Sketcher.Constraint("DistanceY", 0, 3, -1, 1, 28.0),
    Sketcher.Constraint("DistanceY", 2, 3, -1, 1, 128.0),
    Sketcher.Constraint("DistanceX", 0, 3, 1, 3, 63.5),
    Sketcher.Constraint("DistanceX", -1, 1, 0, 3, 20.25),
])
pocket2 = body.newObject("PartDesign::Pocket", "Pocket001")
pocket2.Profile = sketch11
pocket2.Length = 13
pocket2.Reversed = True
doc.recompute()

chamfer = body.newObject("PartDesign::Chamfer", "Chamfer")
chamfer.Base = (pocket2, edges_at(pocket2, [
    (83.75, -3, -29.6),
    (20.25, -3, -129.6),
    (83.75, -3, -129.6),
    (20.25, -3, -29.6),
]))
chamfer.Size = 1
doc.recompute()

body6 = doc.addObject("PartDesign::Body", "Body005")
body6.BaseFeature = body4
boolean2 = body2.newObject("PartDesign::Boolean", "Boolean001")
boolean2.Type = "Cut"
boolean2.addObjects([body6])
doc.recompute()

boolean3 = body3.newObject("PartDesign::Boolean", "Boolean002")
boolean3.Type = "Cut"
boolean3.addObjects([body4])

doc.recompute()
